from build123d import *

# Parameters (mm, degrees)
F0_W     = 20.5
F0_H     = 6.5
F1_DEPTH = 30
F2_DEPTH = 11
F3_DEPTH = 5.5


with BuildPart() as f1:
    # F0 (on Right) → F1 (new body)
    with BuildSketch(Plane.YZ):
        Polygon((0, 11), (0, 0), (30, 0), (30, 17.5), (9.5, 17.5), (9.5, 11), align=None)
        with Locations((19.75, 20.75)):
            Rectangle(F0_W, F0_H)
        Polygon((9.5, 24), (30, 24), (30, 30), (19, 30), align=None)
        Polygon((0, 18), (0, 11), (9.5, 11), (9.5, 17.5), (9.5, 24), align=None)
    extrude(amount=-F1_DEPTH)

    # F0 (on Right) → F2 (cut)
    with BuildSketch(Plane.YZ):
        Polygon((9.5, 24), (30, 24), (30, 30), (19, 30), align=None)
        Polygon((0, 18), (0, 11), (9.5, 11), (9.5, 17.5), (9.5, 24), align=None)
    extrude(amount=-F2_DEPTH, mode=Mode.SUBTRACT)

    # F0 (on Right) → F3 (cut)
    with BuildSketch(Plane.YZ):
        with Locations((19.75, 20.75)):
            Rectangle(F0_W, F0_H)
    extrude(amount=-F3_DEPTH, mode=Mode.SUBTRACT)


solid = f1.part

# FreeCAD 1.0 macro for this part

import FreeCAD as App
import Part
import Sketcher
from FreeCAD import Vector
Q = App.Units.Quantity

doc = App.newDocument("Part")
body = doc.addObject("PartDesign::Body", "Body")

sketch1 = body.newObject("Sketcher::SketchObject", "Sketch")
sketch1.AttachmentSupport = (doc.getObject("YZ_Plane"), [""])
sketch1.MapMode = "FlatFace"
sketch1.addGeometry([
    Part.LineSegment(Vector(0, 0, 0), Vector(30, 0, 0)),
    Part.LineSegment(Vector(30, 0, 0), Vector(30, 30, 0)),
    Part.LineSegment(Vector(30, 30, 0), Vector(19, 30, 0)),
    Part.LineSegment(Vector(19, 30, 0), Vector(0, 18, 0)),
    Part.LineSegment(Vector(0, 18, 0), Vector(0, 0, 0)),
], False)
sketch1.addConstraint([
    Sketcher.Constraint("Coincident", 0, 2, 1, 1),
    Sketcher.Constraint("Coincident", 1, 2, 2, 1),
    Sketcher.Constraint("Coincident", 2, 2, 3, 1),
    Sketcher.Constraint("Coincident", 3, 2, 4, 1),
    Sketcher.Constraint("Coincident", 4, 2, 0, 1),
    Sketcher.Constraint("Horizontal", 0),
    Sketcher.Constraint("Vertical", 1),
    Sketcher.Constraint("Horizontal", 2),
    Sketcher.Constraint("Vertical", 4),
    Sketcher.Constraint("Coincident", 4, 2, -1, 1),
    Sketcher.Constraint("Equal", 0, 1),
    Sketcher.Constraint("DistanceX", 0, 1, 0, 2, Q("30 mm")),
    Sketcher.Constraint("DistanceX", 2, 2, 2, 1, Q("11 mm")),
    Sketcher.Constraint("DistanceY", 4, 2, 4, 1, Q("18 mm")),
])
pad1 = body.newObject("PartDesign::Pad", "Pad")
pad1.Profile = sketch1
pad1.Length = 30
pad1.Reversed = True

sketch2 = body.newObject("Sketcher::SketchObject", "Sketch001")
sketch2.AttachmentSupport = (doc.getObject("YZ_Plane"), [""])
sketch2.MapMode = "FlatFace"
sketch2.addGeometry([
    Part.LineSegment(Vector(9.5, 24, 0), Vector(30, 24, 0)),
    Part.LineSegment(Vector(30, 24, 0), Vector(30, 30, 0)),
    Part.LineSegment(Vector(30, 30, 0), Vector(19, 30, 0)),
    Part.LineSegment(Vector(19, 30, 0), Vector(9.5, 24, 0)),
    Part.LineSegment(Vector(0, 18, 0), Vector(0, 11, 0)),
    Part.LineSegment(Vector(0, 11, 0), Vector(9.5, 11, 0)),
    Part.LineSegment(Vector(9.5, 11, 0), Vector(9.5, 24, 0)),
    Part.LineSegment(Vector(9.5, 24, 0), Vector(0, 18, 0)),
], False)
sketch2.addConstraint([
    Sketcher.Constraint("Coincident", 0, 2, 1, 1),
    Sketcher.Constraint("Coincident", 1, 2, 2, 1),
    Sketcher.Constraint("Coincident", 2, 2, 3, 1),
    Sketcher.Constraint("Coincident", 3, 2, 0, 1),
    Sketcher.Constraint("Coincident", 4, 2, 5, 1),
    Sketcher.Constraint("Coincident", 5, 2, 6, 1),
    Sketcher.Constraint("Coincident", 6, 2, 7, 1),
    Sketcher.Constraint("Coincident", 7, 2, 4, 1),
    Sketcher.Constraint("Horizontal", 0),
    Sketcher.Constraint("Vertical", 1),
    Sketcher.Constraint("Horizontal", 2),
    Sketcher.Constraint("Vertical", 4),
    Sketcher.Constraint("Horizontal", 5),
    Sketcher.Constraint("Vertical", 6),
    Sketcher.Constraint("Coincident", 6, 2, 3, 2),
    Sketcher.Constraint("PointOnObject", 4, 2, -2),
    Sketcher.Constraint("Parallel", 3, 7),
    Sketcher.Constraint("Equal", 3, 7),
    Sketcher.Constraint("DistanceX", 2, 2, 2, 1, Q("11 mm")),
    Sketcher.Constraint("DistanceY", 1, 1, 1, 2, Q("6 mm")),
    Sketcher.Constraint("DistanceY", 4, 2, 4, 1, Q("7 mm")),
    Sketcher.Constraint("DistanceX", 0, 1, 0, 2, Q("20.5 mm")),
    Sketcher.Constraint("DistanceY", -1, 1, 0, 2, Q("24 mm")),
])
pocket1 = body.newObject("PartDesign::Pocket", "Pocket")
pocket1.Profile = sketch2
pocket1.Length = 11

sketch3 = body.newObject("Sketcher::SketchObject", "Sketch002")
sketch3.AttachmentSupport = (doc.getObject("YZ_Plane"), [""])
sketch3.MapMode = "FlatFace"
sketch3.addGeometry([
    Part.LineSegment(Vector(9.5, 24, 0), Vector(9.5, 17.5, 0)),
    Part.LineSegment(Vector(9.5, 17.5, 0), Vector(30, 17.5, 0)),
    Part.LineSegment(Vector(30, 17.5, 0), Vector(30, 24, 0)),
    Part.LineSegment(Vector(30, 24, 0), Vector(9.5, 24, 0)),
], False)
sketch3.addConstraint([
    Sketcher.Constraint("Coincident", 0, 2, 1, 1),
    Sketcher.Constraint("Coincident", 1, 2, 2, 1),
    Sketcher.Constraint("Coincident", 2, 2, 3, 1),
    Sketcher.Constraint("Coincident", 3, 2, 0, 1),
    Sketcher.Constraint("Vertical", 0),
    Sketcher.Constraint("Horizontal", 1),
    Sketcher.Constraint("Vertical", 2),
    Sketcher.Constraint("Horizontal", 3),
    Sketcher.Constraint("DistanceX", 1, 1, 1, 2, Q("20.5 mm")),
    Sketcher.Constraint("DistanceY", 0, 2, 0, 1, Q("6.5 mm")),
    Sketcher.Constraint("DistanceX", -1, 1, 1, 2, Q("30 mm")),
    Sketcher.Constraint("DistanceY", -1, 1, 2, 2, Q("24 mm")),
])
pocket2 = body.newObject("PartDesign::Pocket", "Pocket001")
pocket2.Profile = sketch3
pocket2.Length = 5.5

doc.recompute()
